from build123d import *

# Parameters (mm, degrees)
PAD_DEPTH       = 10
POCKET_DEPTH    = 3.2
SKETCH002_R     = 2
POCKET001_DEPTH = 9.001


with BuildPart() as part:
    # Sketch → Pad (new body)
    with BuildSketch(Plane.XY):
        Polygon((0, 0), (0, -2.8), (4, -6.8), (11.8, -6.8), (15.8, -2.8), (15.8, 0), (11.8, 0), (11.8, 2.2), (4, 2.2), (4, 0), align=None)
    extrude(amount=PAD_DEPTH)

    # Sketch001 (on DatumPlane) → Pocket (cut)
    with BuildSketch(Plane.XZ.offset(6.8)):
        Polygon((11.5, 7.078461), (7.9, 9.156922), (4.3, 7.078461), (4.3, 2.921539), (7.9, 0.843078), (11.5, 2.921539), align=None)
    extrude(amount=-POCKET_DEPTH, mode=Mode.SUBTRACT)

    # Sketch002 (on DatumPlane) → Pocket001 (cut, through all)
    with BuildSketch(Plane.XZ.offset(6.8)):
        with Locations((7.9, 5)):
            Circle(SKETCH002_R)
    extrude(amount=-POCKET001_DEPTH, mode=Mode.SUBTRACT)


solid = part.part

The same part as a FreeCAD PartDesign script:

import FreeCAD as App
import Part
import Sketcher
from FreeCAD import Vector
Q = App.Units.Quantity


def add_polygon(sketch, points):
    """Adds a closed chain of lines whose ends are joined by coincident constraints."""
    first, n = sketch.GeometryCount, len(points)
    for a, b in zip(points, points[1:] + points[:1]):
        sketch.addGeometry(Part.LineSegment(App.Vector(*a, 0), App.Vector(*b, 0)), False)
    for i in range(n):
        sketch.addConstraint(Sketcher.Constraint("Coincident", first + i, 2, first + (i + 1) % n, 1))

doc = App.newDocument("Part")
params = doc.addObject("Spreadsheet::Sheet", "Params")
for row, (alias, value) in enumerate([
    ("sketch1_width", "4 mm"),
    ("sketch1_width2", "7.8 mm"),
    ("sketch1_height", "2.8 mm"),
    ("sketch1_height2", "2.2 mm"),
    ("pad1_length", "10 mm"),
    ("pocket1_length", "3.2 mm"),
    ("sketch3_diameter", "4 mm"),
], start=1):
    params.set(f"A{row}", alias)
    params.set(f"B{row}", "=" + value)
    params.setAlias(f"B{row}", alias)

body = doc.addObject("PartDesign::Body", "Body")

# Sketch on XY plane
sketch1 = body.newObject("Sketcher::SketchObject", "Sketch")
sketch1.AttachmentSupport = (doc.getObject("XY_Plane"), [""])
sketch1.MapMode = "FlatFace"
add_polygon(sketch1, [(0, 0), (0, -2.8), (4, -6.8), (11.8, -6.8), (15.8, -2.8), (15.8, 0), (11.8, 0), (11.8, 2.2), (4, 2.2), (4, 0)])  # lines 0-9
sketch1.addConstraint([
    Sketcher.Constraint("Vertical", 0),
    Sketcher.Constraint("Horizontal", 2),
    Sketcher.Constraint("Vertical", 4),
    Sketcher.Constraint("Horizontal", 5),
    Sketcher.Constraint("Vertical", 6),
    Sketcher.Constraint("Horizontal", 7),
    Sketcher.Constraint("Vertical", 8),
    Sketcher.Constraint("Horizontal", 9),
    Sketcher.Constraint("Coincident", 9, 2, -1, 1),
    Sketcher.Constraint("PointOnObject", 4, 2, -1),
    Sketcher.Constraint("Perpendicular", 1, 3),
    Sketcher.Constraint("Horizontal", 0, 2, 3, 2),
    Sketcher.Constraint("Vertical", 2, 2, 5, 2),
    Sketcher.Constraint("Vertical", 1, 2, 7, 2),
    Sketcher.Constraint("Equal", 5, 9),
    Sketcher.Constraint("DistanceX", 5, 2, 5, 1, 4.0),
    Sketcher.Constraint("DistanceX", 2, 1, 2, 2, 7.8),
    Sketcher.Constraint("DistanceY", 0, 2, 0, 1, 2.8),
    Sketcher.Constraint("DistanceY", 6, 1, 6, 2, 2.2),
])
sketch1.setExpression("Constraints[25]", "Params.sketch1_width")
sketch1.setExpression("Constraints[26]", "Params.sketch1_width2")
sketch1.setExpression("Constraints[27]", "Params.sketch1_height")
sketch1.setExpression("Constraints[28]", "Params.sketch1_height2")
pad1 = body.newObject("PartDesign::Pad", "Pad")
pad1.Profile = sketch1
pad1.setExpression("Length", "Params.pad1_length")

# Sketch on XZ plane
sketch2 = body.newObject("Sketcher::SketchObject", "Sketch001")
sketch2.AttachmentSupport = (doc.getObject("XZ_Plane"), [""])
sketch2.MapMode = "FlatFace"
sketch2.AttachmentOffset = App.Placement(Vector(0, 0, 6.8), App.Rotation())
add_polygon(sketch2, [(11.5, 7.1), (7.9, 9.2), (4.3, 7.1), (4.3, 2.9), (7.9, 0.8), (11.5, 2.9)])  # lines 0-5
sketch2.addConstraint([
    Sketcher.Constraint("Vertical", 2),
    Sketcher.Constraint("Vertical", 5),
    Sketcher.Constraint("Parallel", 0, 3),
    Sketcher.Constraint("Parallel", 1, 4),
    Sketcher.Constraint("Horizontal", 2, 2, 4, 2),
    Sketcher.Constraint("Horizontal", 1, 2, 5, 2),
    Sketcher.Constraint("Vertical", 0, 2, 3, 2),
    Sketcher.Constraint("Angle", 0, Q("150 deg")),
    Sketcher.Constraint("DistanceX", -1, 1, 0, 2, 7.9),
    Sketcher.Constraint("DistanceX", -1, 1, 1, 2, 4.3),
    Sketcher.Constraint("DistanceY", 2, 2, 2, 1, 4.156922),
    Sketcher.Constraint("DistanceY", -1, 1, 1, 2, 7.078461),
])
pocket1 = body.newObject("PartDesign::Pocket", "Pocket")
pocket1.Profile = sketch2
pocket1.setExpression("Length", "Params.pocket1_length")

# Sketch on XZ plane
sketch3 = body.newObject("Sketcher::SketchObject", "Sketch002")
sketch3.AttachmentSupport = (doc.getObject("XZ_Plane"), [""])
sketch3.MapMode = "FlatFace"
sketch3.AttachmentOffset = App.Placement(Vector(0, 0, 6.8), App.Rotation())
sketch3.addGeometry(Part.Circle(Vector(7.9, 5, 0), Vector(0, 0, 1), 2), False)
sketch3.addConstraint([
    Sketcher.Constraint("Diameter", 0, 4.0),
    Sketcher.Constraint("DistanceY", -1, 1, 0, 3, 5.0),
    Sketcher.Constraint("DistanceX", -1, 1, 0, 3, 7.9),
])
sketch3.setExpression("Constraints[0]", "Params.sketch3_diameter")
pocket2 = body.newObject("PartDesign::Pocket", "Pocket001")
pocket2.Profile = sketch3
pocket2.Type = "ThroughAll"

doc.recompute()
